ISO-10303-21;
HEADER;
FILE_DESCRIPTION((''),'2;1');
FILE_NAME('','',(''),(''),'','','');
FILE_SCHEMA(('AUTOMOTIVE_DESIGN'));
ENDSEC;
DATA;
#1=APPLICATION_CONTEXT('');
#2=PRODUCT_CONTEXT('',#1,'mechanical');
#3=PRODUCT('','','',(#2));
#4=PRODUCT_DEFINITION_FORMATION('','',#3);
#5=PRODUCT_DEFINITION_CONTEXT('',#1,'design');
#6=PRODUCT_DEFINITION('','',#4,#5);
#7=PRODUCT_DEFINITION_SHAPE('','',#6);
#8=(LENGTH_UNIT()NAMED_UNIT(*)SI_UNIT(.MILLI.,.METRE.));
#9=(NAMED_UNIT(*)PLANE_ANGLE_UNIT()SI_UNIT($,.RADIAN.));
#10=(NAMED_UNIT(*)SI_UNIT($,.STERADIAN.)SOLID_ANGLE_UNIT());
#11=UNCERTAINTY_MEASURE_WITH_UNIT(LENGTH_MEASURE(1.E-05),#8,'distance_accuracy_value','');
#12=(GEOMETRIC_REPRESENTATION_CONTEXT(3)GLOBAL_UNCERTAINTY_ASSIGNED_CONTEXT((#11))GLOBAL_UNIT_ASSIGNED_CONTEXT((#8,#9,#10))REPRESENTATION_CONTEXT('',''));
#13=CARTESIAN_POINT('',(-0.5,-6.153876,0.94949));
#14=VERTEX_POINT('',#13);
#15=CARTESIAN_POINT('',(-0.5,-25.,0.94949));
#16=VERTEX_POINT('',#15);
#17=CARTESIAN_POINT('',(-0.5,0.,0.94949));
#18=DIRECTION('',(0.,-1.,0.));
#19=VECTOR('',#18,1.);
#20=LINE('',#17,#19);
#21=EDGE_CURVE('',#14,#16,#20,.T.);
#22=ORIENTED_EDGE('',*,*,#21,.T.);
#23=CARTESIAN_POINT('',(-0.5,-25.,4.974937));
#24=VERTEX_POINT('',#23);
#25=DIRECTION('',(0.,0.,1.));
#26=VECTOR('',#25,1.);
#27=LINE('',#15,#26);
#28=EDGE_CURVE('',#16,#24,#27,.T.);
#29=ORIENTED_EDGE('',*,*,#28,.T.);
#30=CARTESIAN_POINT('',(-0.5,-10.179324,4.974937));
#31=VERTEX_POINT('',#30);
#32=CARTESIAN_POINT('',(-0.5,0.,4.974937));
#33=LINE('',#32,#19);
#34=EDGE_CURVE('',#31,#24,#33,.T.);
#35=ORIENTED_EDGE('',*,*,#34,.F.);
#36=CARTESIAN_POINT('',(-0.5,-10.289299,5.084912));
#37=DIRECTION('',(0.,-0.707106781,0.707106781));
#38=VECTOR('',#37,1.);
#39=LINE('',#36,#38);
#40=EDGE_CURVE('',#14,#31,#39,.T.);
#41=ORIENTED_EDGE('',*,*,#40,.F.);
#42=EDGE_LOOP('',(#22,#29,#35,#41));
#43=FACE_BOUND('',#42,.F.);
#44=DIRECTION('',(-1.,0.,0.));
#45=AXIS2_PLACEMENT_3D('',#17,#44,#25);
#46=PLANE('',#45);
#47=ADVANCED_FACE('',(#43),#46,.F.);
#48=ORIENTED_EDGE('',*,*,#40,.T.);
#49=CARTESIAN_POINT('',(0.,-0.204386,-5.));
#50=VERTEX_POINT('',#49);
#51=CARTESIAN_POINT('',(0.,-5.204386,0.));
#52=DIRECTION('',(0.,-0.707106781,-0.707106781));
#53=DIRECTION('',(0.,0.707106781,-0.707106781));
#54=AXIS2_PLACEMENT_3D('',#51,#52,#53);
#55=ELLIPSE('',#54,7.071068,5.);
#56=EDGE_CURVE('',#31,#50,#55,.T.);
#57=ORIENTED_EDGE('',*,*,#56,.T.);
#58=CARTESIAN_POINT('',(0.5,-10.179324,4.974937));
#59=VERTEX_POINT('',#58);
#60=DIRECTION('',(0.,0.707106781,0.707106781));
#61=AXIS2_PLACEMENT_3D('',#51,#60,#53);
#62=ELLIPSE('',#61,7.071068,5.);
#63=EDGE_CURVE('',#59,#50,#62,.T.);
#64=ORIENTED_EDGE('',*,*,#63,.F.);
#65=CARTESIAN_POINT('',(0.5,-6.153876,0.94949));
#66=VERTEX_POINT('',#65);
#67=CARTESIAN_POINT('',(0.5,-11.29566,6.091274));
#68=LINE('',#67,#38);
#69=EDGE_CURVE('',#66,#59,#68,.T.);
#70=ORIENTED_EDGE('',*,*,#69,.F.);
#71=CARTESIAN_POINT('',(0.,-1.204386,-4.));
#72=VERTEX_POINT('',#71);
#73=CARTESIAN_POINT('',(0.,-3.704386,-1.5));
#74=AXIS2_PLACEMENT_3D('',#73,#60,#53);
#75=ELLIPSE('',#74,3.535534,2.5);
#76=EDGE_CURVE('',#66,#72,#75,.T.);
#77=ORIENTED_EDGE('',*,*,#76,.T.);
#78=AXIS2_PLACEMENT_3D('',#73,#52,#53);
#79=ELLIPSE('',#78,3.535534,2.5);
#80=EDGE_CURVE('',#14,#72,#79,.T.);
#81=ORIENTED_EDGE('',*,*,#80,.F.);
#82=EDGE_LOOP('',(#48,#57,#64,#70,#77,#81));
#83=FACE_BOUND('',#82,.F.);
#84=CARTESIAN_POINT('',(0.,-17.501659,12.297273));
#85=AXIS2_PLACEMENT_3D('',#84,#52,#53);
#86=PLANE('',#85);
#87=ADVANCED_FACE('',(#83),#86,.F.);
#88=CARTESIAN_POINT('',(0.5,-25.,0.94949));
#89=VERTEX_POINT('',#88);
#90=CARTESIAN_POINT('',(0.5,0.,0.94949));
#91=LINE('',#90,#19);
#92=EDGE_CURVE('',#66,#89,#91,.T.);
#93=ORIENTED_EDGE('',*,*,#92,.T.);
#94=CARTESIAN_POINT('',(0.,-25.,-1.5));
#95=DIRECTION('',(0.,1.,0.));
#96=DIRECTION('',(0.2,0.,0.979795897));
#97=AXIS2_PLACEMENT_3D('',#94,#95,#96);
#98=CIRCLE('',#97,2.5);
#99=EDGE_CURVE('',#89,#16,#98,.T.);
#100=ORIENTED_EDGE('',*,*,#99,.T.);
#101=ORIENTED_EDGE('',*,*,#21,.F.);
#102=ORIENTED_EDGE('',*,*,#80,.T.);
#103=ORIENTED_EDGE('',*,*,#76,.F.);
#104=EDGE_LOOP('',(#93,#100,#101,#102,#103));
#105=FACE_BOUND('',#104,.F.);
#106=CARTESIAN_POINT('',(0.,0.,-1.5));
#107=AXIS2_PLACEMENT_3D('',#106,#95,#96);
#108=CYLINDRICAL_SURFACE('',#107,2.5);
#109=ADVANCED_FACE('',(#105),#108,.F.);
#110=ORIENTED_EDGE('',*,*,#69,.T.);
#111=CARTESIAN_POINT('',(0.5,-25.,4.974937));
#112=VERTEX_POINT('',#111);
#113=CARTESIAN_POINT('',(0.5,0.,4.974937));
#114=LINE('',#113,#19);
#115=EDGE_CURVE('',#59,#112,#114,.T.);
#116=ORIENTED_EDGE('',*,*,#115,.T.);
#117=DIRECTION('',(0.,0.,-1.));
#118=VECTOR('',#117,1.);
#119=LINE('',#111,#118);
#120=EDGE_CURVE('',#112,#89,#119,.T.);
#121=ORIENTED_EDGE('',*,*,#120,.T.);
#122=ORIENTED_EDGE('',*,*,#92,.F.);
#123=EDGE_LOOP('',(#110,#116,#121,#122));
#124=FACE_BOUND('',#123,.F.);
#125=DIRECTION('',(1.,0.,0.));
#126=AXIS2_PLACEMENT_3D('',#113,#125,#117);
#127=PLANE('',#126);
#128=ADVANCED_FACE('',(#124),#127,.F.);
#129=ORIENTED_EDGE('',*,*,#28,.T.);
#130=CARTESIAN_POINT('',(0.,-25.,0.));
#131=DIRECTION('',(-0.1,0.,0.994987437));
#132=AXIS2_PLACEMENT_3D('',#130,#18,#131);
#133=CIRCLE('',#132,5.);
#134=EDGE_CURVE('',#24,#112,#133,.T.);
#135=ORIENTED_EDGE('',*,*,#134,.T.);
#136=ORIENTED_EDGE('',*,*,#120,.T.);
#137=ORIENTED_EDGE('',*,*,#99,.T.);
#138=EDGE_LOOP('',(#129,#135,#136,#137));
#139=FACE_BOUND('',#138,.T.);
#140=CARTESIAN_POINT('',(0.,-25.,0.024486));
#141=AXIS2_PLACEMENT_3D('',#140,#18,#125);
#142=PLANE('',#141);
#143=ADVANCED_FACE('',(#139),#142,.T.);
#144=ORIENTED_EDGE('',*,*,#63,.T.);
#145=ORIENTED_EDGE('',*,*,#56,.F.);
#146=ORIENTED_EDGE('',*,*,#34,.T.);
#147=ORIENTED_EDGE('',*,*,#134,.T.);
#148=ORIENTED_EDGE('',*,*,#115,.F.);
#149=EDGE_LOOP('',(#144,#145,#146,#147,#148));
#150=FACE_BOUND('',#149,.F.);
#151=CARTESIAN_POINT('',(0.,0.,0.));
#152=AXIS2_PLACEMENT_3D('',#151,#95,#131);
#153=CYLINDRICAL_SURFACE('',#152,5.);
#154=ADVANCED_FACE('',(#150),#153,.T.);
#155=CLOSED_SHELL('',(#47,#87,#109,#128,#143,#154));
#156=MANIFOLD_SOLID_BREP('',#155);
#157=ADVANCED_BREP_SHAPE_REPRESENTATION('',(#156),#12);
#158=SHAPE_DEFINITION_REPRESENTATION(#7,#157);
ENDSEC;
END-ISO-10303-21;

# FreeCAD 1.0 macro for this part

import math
import FreeCAD as App
import Part
import Sketcher

doc = App.newDocument("Part")
body = doc.addObject("PartDesign::Body", "Body")

# Sketch on XZ plane
sketch1 = body.newObject("Sketcher::SketchObject", "Sketch")
sketch1.AttachmentSupport = (doc.getObject("XZ_Plane"), [""])
sketch1.MapMode = "FlatFace"
sketch1.addGeometry(Part.LineSegment(App.Vector(-0.5, 0.9, 0), App.Vector(-0.5, 5, 0)), False)
sketch1.addGeometry(Part.ArcOfCircle(Part.Circle(App.Vector(0, 0, 0), App.Vector(0, 0, 1), 5), math.radians(96), math.radians(444)), False)
sketch1.addGeometry(Part.LineSegment(App.Vector(0.5, 5, 0), App.Vector(0.5, 0.9, 0)), False)
sketch1.addGeometry(Part.ArcOfCircle(Part.Circle(App.Vector(0, -1.5, 0), App.Vector(0, 0, 1), 2.5), math.radians(102), math.radians(438)), False)
sketch1.addConstraint(Sketcher.Constraint("Coincident", 0, 2, 1, 1))
sketch1.addConstraint(Sketcher.Constraint("Coincident", 1, 2, 2, 1))
sketch1.addConstraint(Sketcher.Constraint("Coincident", 2, 2, 3, 2))
sketch1.addConstraint(Sketcher.Constraint("Coincident", 3, 1, 0, 1))
sketch1.addConstraint(Sketcher.Constraint("Vertical", 0))
sketch1.addConstraint(Sketcher.Constraint("Vertical", 2))
sketch1.addConstraint(Sketcher.Constraint("Coincident", 1, 3, -1, 1))
sketch1.addConstraint(Sketcher.Constraint("Symmetric", 2, 2, 3, 1, -2))
sketch1.addConstraint(Sketcher.Constraint("Radius", 1, 5.0))
sketch1.addConstraint(Sketcher.Constraint("Radius", 3, 2.5))
sketch1.addConstraint(Sketcher.Constraint("DistanceX", 0, 2, 1, 2, 1.0))
sketch1.addConstraint(Sketcher.Constraint("DistanceY", 3, 3, -1, 1, 1.5))
pad1 = body.newObject("PartDesign::Pad", "Pad")
pad1.Profile = sketch1
pad1.Length = 25

# Sketch on YZ plane
sketch2 = body.newObject("Sketcher::SketchObject", "Sketch001")
sketch2.AttachmentSupport = (doc.getObject("YZ_Plane"), [""])
sketch2.MapMode = "FlatFace"
sketch2.addGeometry(Part.LineSegment(App.Vector(11, 12, 0), App.Vector(-18, 12, 0)), False)
sketch2.addGeometry(Part.LineSegment(App.Vector(-18, 12, 0), App.Vector(11, -16, 0)), False)
sketch2.addGeometry(Part.LineSegment(App.Vector(11, -16, 0), App.Vector(11, 12, 0)), False)
sketch2.addConstraint(Sketcher.Constraint("Coincident", 0, 2, 1, 1))
sketch2.addConstraint(Sketcher.Constraint("Coincident", 1, 2, 2, 1))
sketch2.addConstraint(Sketcher.Constraint("Coincident", 2, 2, 0, 1))
sketch2.addConstraint(Sketcher.Constraint("Horizontal", 0))
sketch2.addConstraint(Sketcher.Constraint("Vertical", 2))
sketch2.addConstraint(Sketcher.Constraint("Equal", 0, 2))
sketch2.addConstraint(Sketcher.Constraint("Distance", 1, 40.705441))
sketch2.addConstraint(Sketcher.Constraint("DistanceX", 0, 2, -1, 1, 17.501659))
sketch2.addConstraint(Sketcher.Constraint("DistanceY", 1, 2, -1, 1, 16.485821))
pocket1 = body.newObject("PartDesign::Pocket", "Pocket")
pocket1.Profile = sketch2
pocket1.Type = "ThroughAll"
pocket1.Midplane = True

doc.recompute()
